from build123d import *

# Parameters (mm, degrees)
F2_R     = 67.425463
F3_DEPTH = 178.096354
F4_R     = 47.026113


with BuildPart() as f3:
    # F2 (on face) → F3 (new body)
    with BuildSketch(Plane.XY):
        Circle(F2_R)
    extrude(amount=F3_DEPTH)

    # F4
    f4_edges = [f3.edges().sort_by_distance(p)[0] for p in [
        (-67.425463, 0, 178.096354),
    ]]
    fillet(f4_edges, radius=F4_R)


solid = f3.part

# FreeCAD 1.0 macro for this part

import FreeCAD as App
import Part
import Sketcher


def edges_at(feature, points):
    """Names of the edges that pass closest to the given points."""
    edges = feature.Shape.Edges
    near = lambda p: min(range(len(edges)), key=lambda i: edges[i].distToShape(Part.Vertex(*p))[0])
    return sorted({f"Edge{near(p) + 1}" for p in points})

doc = App.newDocument("Part")
body = doc.addObject("PartDesign::Body", "Body")

sketch1 = body.newObject("Sketcher::SketchObject", "Sketch")
sketch1.AttachmentSupport = (doc.getObject("XY_Plane"), [""])
sketch1.MapMode = "FlatFace"
sketch1.addGeometry(Part.Circle(App.Vector(0, 0, 0), App.Vector(0, 0, 1), 67), False)
sketch1.addConstraint([
    Sketcher.Constraint("Coincident", 0, 3, -1, 1),
    Sketcher.Constraint("Diameter", 0, 134.850926),
])
pad1 = body.newObject("PartDesign::Pad", "Pad")
pad1.Profile = sketch1
pad1.Length = 178.096354
doc.recompute()

fillet = body.newObject("PartDesign::Fillet", "Fillet")
fillet.Base = (pad1, edges_at(pad1, [(-67.425, 0, 178.096)]))
fillet.Radius = 47.026113

doc.recompute()
